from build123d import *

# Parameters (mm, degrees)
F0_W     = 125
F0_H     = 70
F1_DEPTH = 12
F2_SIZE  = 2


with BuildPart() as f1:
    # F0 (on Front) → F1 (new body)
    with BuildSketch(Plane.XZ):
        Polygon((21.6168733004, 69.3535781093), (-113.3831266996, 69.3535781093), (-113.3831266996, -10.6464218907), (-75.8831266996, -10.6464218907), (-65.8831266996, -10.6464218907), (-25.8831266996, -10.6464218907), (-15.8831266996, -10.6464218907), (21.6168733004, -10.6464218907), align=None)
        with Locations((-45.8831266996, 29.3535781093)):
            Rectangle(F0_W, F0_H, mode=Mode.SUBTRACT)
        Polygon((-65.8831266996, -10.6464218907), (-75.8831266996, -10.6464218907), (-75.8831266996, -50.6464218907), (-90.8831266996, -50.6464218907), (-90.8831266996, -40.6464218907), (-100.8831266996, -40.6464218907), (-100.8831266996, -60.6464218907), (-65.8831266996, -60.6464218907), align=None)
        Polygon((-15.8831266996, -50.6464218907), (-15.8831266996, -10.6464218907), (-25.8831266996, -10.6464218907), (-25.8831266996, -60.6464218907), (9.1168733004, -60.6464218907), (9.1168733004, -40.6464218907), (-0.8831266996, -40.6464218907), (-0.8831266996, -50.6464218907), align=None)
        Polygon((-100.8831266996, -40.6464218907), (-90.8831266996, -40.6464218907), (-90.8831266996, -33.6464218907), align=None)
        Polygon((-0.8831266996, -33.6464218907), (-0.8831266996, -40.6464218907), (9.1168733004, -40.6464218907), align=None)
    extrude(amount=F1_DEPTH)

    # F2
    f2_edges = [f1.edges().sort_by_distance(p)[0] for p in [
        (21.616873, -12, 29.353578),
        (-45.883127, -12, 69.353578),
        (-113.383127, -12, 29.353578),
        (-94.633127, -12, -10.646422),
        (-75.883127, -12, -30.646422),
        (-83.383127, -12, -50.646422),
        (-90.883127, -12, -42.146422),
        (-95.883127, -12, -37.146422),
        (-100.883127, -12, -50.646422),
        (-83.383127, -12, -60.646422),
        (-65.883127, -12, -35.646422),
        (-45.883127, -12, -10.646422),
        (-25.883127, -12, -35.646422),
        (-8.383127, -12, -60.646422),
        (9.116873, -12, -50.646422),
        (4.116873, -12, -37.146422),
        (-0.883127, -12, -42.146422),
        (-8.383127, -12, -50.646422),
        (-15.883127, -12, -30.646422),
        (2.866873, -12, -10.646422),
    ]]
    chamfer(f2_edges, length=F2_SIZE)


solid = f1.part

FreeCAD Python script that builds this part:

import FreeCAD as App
import Part
import Sketcher
from FreeCAD import Vector


def edges_at(feature, points):
    """Names of the edges that pass closest to the given points."""
    edges = feature.Shape.Edges
    near = lambda p: min(range(len(edges)), key=lambda i: edges[i].distToShape(Part.Vertex(*p))[0])
    return sorted({f"Edge{near(p) + 1}" for p in points})


def add_polygon(sketch, points):
    """Adds a closed chain of lines whose ends are joined by coincident constraints."""
    first, n = sketch.GeometryCount, len(points)
    for a, b in zip(points, points[1:] + points[:1]):
        sketch.addGeometry(Part.LineSegment(App.Vector(*a, 0), App.Vector(*b, 0)), False)
    for i in range(n):
        sketch.addConstraint(Sketcher.Constraint("Coincident", first + i, 2, first + (i + 1) % n, 1))

doc = App.newDocument("Part")
body = doc.addObject("PartDesign::Body", "Body")

sketch1 = body.newObject("Sketcher::SketchObject", "Sketch")
sketch1.AttachmentSupport = (doc.getObject("XZ_Plane"), [""])
sketch1.MapMode = "FlatFace"
add_polygon(sketch1, [(21.616873, 69.353578), (-113.383127, 69.353578), (-113.383127, -10.646422), (-75.883127, -10.646422), (-75.883127, -50.646422), (-90.883127, -50.646422), (-90.883127, -33.646422), (-100.883127, -40.646422), (-100.883127, -60.646422), (-65.883127, -60.646422), (-65.883127, -10.646422), (-25.883127, -10.646422), (-25.883127, -60.646422), (9.116873, -60.646422), (9.116873, -40.646422), (-0.883127, -33.646422), (-0.883127, -50.646422), (-15.883127, -50.646422), (-15.883127, -10.646422), (21.616873, -10.646422)])
add_polygon(sketch1, [(16.616873, -5.646422), (-108.383127, -5.646422), (-108.383127, 64.353578), (16.616873, 64.353578)])
sketch1.addConstraint([
    Sketcher.Constraint("Horizontal", 0),
    Sketcher.Constraint("Vertical", 1),
    Sketcher.Constraint("Horizontal", 2),
    Sketcher.Constraint("Vertical", 3),
    Sketcher.Constraint("Horizontal", 4),
    Sketcher.Constraint("Vertical", 5),
    Sketcher.Constraint("Vertical", 7),
    Sketcher.Constraint("Horizontal", 8),
    Sketcher.Constraint("Vertical", 9),
    Sketcher.Constraint("Horizontal", 10),
    Sketcher.Constraint("Vertical", 11),
    Sketcher.Constraint("Horizontal", 12),
    Sketcher.Constraint("Vertical", 13),
    Sketcher.Constraint("Vertical", 15),
    Sketcher.Constraint("Horizontal", 16),
    Sketcher.Constraint("Vertical", 17),
    Sketcher.Constraint("Horizontal", 18),
    Sketcher.Constraint("Vertical", 19),
    Sketcher.Constraint("Horizontal", 20),
    Sketcher.Constraint("Vertical", 21),
    Sketcher.Constraint("Horizontal", 22),
    Sketcher.Constraint("Vertical", 23),
    Sketcher.Constraint("Horizontal", 2, 2, 9, 2),
    Sketcher.Constraint("Horizontal", 8, 2, 11, 2),
    Sketcher.Constraint("Horizontal", 6, 2, 13, 2),
    Sketcher.Constraint("Horizontal", 5, 2, 14, 2),
    Sketcher.Constraint("Horizontal", 4, 2, 15, 2),
    Sketcher.Constraint("Horizontal", 10, 2, 17, 2),
    Sketcher.Constraint("Equal", 8, 12),
    Sketcher.Constraint("Equal", 4, 16),
    Sketcher.Constraint("Equal", 2, 18),
    Sketcher.Constraint("Equal", 10, 3),
    Sketcher.Constraint("Equal", 6, 14),
    Sketcher.Constraint("DistanceX", 0, 2, 0, 1, 135.0),
    Sketcher.Constraint("DistanceX", 4, 2, 4, 1, 15.0),
    Sketcher.Constraint("DistanceX", 8, 1, 8, 2, 35.0),
    Sketcher.Constraint("DistanceX", 10, 1, 10, 2, 40.0),
    Sketcher.Constraint("DistanceX", 20, 2, 20, 1, 125.0),
    Sketcher.Constraint("DistanceY", 1, 2, 1, 1, 80.0),
    Sketcher.Constraint("DistanceY", 5, 1, 5, 2, 17.0),
    Sketcher.Constraint("DistanceY", 7, 2, 7, 1, 20.0),
    Sketcher.Constraint("DistanceY", 9, 1, 9, 2, 50.0),
    Sketcher.Constraint("DistanceY", 21, 1, 21, 2, 70.0),
    Sketcher.Constraint("DistanceX", 2, 1, 2, 2, 37.5),
    Sketcher.Constraint("DistanceX", 1, 2, 20, 2, 5.0),
    Sketcher.Constraint("DistanceY", 1, 2, 20, 2, 5.0),
    Sketcher.Constraint("DistanceY", -1, 1, 0, 2, 69.353578),
    Sketcher.Constraint("DistanceX", 0, 2, -1, 1, 113.383127),
])
pad1 = body.newObject("PartDesign::Pad", "Pad")
pad1.Profile = sketch1
pad1.Length = 12
doc.recompute()

chamfer = body.newObject("PartDesign::Chamfer", "Chamfer")
chamfer.Base = (pad1, edges_at(pad1, [
    (21.617, -12, 29.354),
    (-45.883, -12, 69.354),
    (-113.383, -12, 29.354),
    (-94.633, -12, -10.646),
    (-75.883, -12, -30.646),
    (-83.383, -12, -50.646),
    (-90.883, -12, -42.146),
    (-95.883, -12, -37.146),
    (-100.883, -12, -50.646),
    (-83.383, -12, -60.646),
    (-65.883, -12, -35.646),
    (-45.883, -12, -10.646),
    (-25.883, -12, -35.646),
    (-8.383, -12, -60.646),
    (9.117, -12, -50.646),
    (4.117, -12, -37.146),
    (-0.883, -12, -42.146),
    (-8.383, -12, -50.646),
    (-15.883, -12, -30.646),
    (2.867, -12, -10.646),
]))
chamfer.Size = 2

doc.recompute()
